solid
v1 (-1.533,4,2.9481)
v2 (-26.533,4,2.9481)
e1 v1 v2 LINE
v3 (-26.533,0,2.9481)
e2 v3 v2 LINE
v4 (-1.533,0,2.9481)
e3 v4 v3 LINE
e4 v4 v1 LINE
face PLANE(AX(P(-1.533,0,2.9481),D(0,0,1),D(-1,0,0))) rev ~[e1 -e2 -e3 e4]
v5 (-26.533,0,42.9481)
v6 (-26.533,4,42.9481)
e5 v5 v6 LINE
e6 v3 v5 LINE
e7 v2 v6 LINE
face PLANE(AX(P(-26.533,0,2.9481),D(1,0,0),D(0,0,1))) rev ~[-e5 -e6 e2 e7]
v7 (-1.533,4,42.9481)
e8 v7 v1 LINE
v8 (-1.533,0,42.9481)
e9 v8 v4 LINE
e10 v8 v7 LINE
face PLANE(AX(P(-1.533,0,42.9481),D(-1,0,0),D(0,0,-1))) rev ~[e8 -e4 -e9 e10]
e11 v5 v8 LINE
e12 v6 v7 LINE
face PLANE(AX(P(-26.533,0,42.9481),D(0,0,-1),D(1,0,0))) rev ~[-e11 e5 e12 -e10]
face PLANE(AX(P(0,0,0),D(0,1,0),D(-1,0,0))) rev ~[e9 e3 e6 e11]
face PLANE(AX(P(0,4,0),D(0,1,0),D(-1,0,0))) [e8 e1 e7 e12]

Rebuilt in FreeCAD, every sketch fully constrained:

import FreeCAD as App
import Part
import Sketcher
Q = App.Units.Quantity

doc = App.newDocument("Part")
params = doc.addObject("Spreadsheet::Sheet", "Params")
for row, (alias, value) in enumerate([
    ("sketch1_width", "25 mm"),
    ("sketch1_height", "40 mm"),
    ("pad1_length", "4 mm"),
], start=1):
    params.set(f"A{row}", alias)
    params.set(f"B{row}", "=" + value)
    params.setAlias(f"B{row}", alias)

body = doc.addObject("PartDesign::Body", "Body")

sketch1 = body.newObject("Sketcher::SketchObject", "Sketch")
sketch1.AttachmentSupport = (doc.getObject("XZ_Plane"), [""])
sketch1.MapMode = "FlatFace"
sketch1.addGeometry([
    Part.LineSegment(App.Vector(-27, 3, 0), App.Vector(-27, 43, 0)),
    Part.LineSegment(App.Vector(-27, 43, 0), App.Vector(-2, 43, 0)),
    Part.LineSegment(App.Vector(-2, 43, 0), App.Vector(-2, 3, 0)),
    Part.LineSegment(App.Vector(-2, 3, 0), App.Vector(-27, 3, 0)),
], False)
sketch1.addConstraint([
    Sketcher.Constraint("Coincident", 0, 2, 1, 1),
    Sketcher.Constraint("Coincident", 1, 2, 2, 1),
    Sketcher.Constraint("Coincident", 2, 2, 3, 1),
    Sketcher.Constraint("Coincident", 3, 2, 0, 1),
    Sketcher.Constraint("Vertical", 0),
    Sketcher.Constraint("Horizontal", 1),
    Sketcher.Constraint("Vertical", 2),
    Sketcher.Constraint("Horizontal", 3),
    Sketcher.Constraint("DistanceX", 1, 1, 1, 2, Q("25 mm")),
    Sketcher.Constraint("DistanceY", 0, 1, 0, 2, Q("40 mm")),
    Sketcher.Constraint("DistanceX", 0, 2, -1, 1, Q("26.533 mm")),
    Sketcher.Constraint("DistanceY", -1, 1, 0, 2, Q("42.948 mm")),
])
sketch1.setExpression("Constraints[8]", "Params.sketch1_width")
sketch1.setExpression("Constraints[9]", "Params.sketch1_height")
pad1 = body.newObject("PartDesign::Pad", "Pad")
pad1.Profile = sketch1
pad1.setExpression("Length", "Params.pad1_length")
pad1.Reversed = True

doc.recompute()
